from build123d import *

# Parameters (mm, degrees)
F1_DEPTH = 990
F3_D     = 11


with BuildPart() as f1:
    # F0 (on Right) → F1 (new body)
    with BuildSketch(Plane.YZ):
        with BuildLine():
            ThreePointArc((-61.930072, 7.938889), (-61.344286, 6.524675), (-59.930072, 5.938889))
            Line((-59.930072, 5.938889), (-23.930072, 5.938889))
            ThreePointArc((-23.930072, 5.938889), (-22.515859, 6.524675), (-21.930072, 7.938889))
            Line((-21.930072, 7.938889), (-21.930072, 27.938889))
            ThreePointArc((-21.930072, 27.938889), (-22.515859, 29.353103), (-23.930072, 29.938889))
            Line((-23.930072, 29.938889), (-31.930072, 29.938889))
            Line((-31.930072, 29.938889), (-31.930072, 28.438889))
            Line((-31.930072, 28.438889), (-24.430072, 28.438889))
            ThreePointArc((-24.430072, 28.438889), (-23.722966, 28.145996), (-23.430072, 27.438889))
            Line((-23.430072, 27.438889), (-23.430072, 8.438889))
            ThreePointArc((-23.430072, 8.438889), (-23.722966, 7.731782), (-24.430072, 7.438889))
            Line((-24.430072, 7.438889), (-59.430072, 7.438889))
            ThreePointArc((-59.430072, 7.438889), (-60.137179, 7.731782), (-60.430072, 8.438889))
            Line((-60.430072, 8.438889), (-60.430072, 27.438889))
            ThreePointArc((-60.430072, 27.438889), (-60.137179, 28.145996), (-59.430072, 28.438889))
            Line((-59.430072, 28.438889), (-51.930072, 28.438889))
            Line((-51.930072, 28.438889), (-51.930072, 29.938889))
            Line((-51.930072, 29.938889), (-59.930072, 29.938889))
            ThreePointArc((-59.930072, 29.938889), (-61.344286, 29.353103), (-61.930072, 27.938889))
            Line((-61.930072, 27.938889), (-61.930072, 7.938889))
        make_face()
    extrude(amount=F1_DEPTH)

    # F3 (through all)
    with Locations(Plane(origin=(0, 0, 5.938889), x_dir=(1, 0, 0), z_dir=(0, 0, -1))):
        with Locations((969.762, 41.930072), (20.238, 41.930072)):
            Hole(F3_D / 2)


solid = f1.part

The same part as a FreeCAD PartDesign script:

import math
import FreeCAD as App
import Part
import Sketcher
from FreeCAD import Vector

doc = App.newDocument("Part")
body = doc.addObject("PartDesign::Body", "Body")

# Sketch on YZ plane
sketch1 = doc.addObject("Sketcher::SketchObject", "Sketch")
body.addObject(sketch1)
sketch1.AttachmentSupport = (doc.YZ_Plane, [""])
sketch1.MapMode = "FlatFace"
sketch1.addGeometry([
    Part.ArcOfCircle(Part.Circle(Vector(-59.9, 7.9, 0), Vector(0, 0, 1), 2), math.radians(180), math.radians(270)),  # 0
    Part.LineSegment(Vector(-59.9, 5.9, 0), Vector(-23.9, 5.9, 0)),  # 1
    Part.ArcOfCircle(Part.Circle(Vector(-23.9, 7.9, 0), Vector(0, 0, 1), 2), math.radians(-90), math.radians(0)),  # 2
    Part.LineSegment(Vector(-21.9, 7.9, 0), Vector(-21.9, 27.9, 0)),  # 3
    Part.ArcOfCircle(Part.Circle(Vector(-23.9, 27.9, 0), Vector(0, 0, 1), 2), math.radians(0), math.radians(90)),  # 4
    Part.LineSegment(Vector(-23.9, 29.9, 0), Vector(-31.9, 29.9, 0)),  # 5
    Part.LineSegment(Vector(-31.9, 29.9, 0), Vector(-31.9, 28.4, 0)),  # 6
    Part.LineSegment(Vector(-31.9, 28.4, 0), Vector(-24.4, 28.4, 0)),  # 7
    Part.ArcOfCircle(Part.Circle(Vector(-24.4, 27.4, 0), Vector(0, 0, 1), 1), math.radians(0), math.radians(90)),  # 8
    Part.LineSegment(Vector(-23.4, 27.4, 0), Vector(-23.4, 8.4, 0)),  # 9
    Part.ArcOfCircle(Part.Circle(Vector(-24.4, 8.4, 0), Vector(0, 0, 1), 1), math.radians(-90), math.radians(0)),  # 10
    Part.LineSegment(Vector(-24.4, 7.4, 0), Vector(-59.4, 7.4, 0)),  # 11
    Part.ArcOfCircle(Part.Circle(Vector(-59.4, 8.4, 0), Vector(0, 0, 1), 1), math.radians(180), math.radians(270)),  # 12
    Part.LineSegment(Vector(-60.4, 8.4, 0), Vector(-60.4, 27.4, 0)),  # 13
    Part.ArcOfCircle(Part.Circle(Vector(-59.4, 27.4, 0), Vector(0, 0, 1), 1), math.radians(90), math.radians(180)),  # 14
    Part.LineSegment(Vector(-59.4, 28.4, 0), Vector(-51.9, 28.4, 0)),  # 15
    Part.LineSegment(Vector(-51.9, 28.4, 0), Vector(-51.9, 29.9, 0)),  # 16
    Part.LineSegment(Vector(-51.9, 29.9, 0), Vector(-59.9, 29.9, 0)),  # 17
    Part.ArcOfCircle(Part.Circle(Vector(-59.9, 27.9, 0), Vector(0, 0, 1), 2), math.radians(90), math.radians(180)),  # 18
    Part.LineSegment(Vector(-61.9, 27.9, 0), Vector(-61.9, 7.9, 0)),  # 19
], False)
sketch1.addConstraint([
    Sketcher.Constraint("Tangent", 0, 2, 1, 1),
    Sketcher.Constraint("Tangent", 1, 2, 2, 1),
    Sketcher.Constraint("Tangent", 2, 2, 3, 1),
    Sketcher.Constraint("Tangent", 3, 2, 4, 1),
    Sketcher.Constraint("Tangent", 4, 2, 5, 1),
    Sketcher.Constraint("Coincident", 5, 2, 6, 1),
    Sketcher.Constraint("Coincident", 6, 2, 7, 1),
    Sketcher.Constraint("Tangent", 7, 2, 8, 2),
    Sketcher.Constraint("Tangent", 8, 1, 9, 1),
    Sketcher.Constraint("Tangent", 9, 2, 10, 2),
    Sketcher.Constraint("Tangent", 10, 1, 11, 1),
    Sketcher.Constraint("Tangent", 11, 2, 12, 2),
    Sketcher.Constraint("Tangent", 12, 1, 13, 1),
    Sketcher.Constraint("Tangent", 13, 2, 14, 2),
    Sketcher.Constraint("Tangent", 14, 1, 15, 1),
    Sketcher.Constraint("Coincident", 15, 2, 16, 1),
    Sketcher.Constraint("Coincident", 16, 2, 17, 1),
    Sketcher.Constraint("Tangent", 17, 2, 18, 1),
    Sketcher.Constraint("Tangent", 18, 2, 19, 1),
    Sketcher.Constraint("Tangent", 19, 2, 0, 1),
    Sketcher.Constraint("Horizontal", 1),
    Sketcher.Constraint("Vertical", 3),
    Sketcher.Constraint("Horizontal", 5),
    Sketcher.Constraint("Vertical", 6),
    Sketcher.Constraint("Horizontal", 7),
    Sketcher.Constraint("Vertical", 9),
    Sketcher.Constraint("Horizontal", 11),
    Sketcher.Constraint("Vertical", 13),
    Sketcher.Constraint("Horizontal", 15),
    Sketcher.Constraint("Vertical", 16),
    Sketcher.Constraint("Horizontal", 17),
    Sketcher.Constraint("Vertical", 19),
    Sketcher.Constraint("Equal", 0, 2),
    Sketcher.Constraint("Equal", 2, 4),
    Sketcher.Constraint("Equal", 8, 10),
    Sketcher.Constraint("Equal", 10, 12),
    Sketcher.Constraint("Equal", 12, 14),
    Sketcher.Constraint("Equal", 4, 18),
    Sketcher.Constraint("Horizontal", 8, 3, 14, 3),
    Sketcher.Constraint("Horizontal", 4, 3, 18, 3),
    Sketcher.Constraint("Equal", 7, 15),
    Sketcher.Constraint("Equal", 5, 17),
    Sketcher.Constraint("Radius", 0, 1.999999),
    Sketcher.Constraint("Radius", 8, 1.000001),
    Sketcher.Constraint("DistanceX", 1, 1, 1, 2, 36.0),
    Sketcher.Constraint("DistanceX", 5, 2, 5, 1, 8.0),
    Sketcher.Constraint("DistanceX", 11, 2, 11, 1, 35.0),
    Sketcher.Constraint("DistanceY", 3, 1, 3, 2, 20.0),
    Sketcher.Constraint("DistanceY", 9, 2, 9, 1, 19.0),
    Sketcher.Constraint("DistanceY", 6, 2, 6, 1, 1.5),
    Sketcher.Constraint("DistanceY", -1, 1, 2, 3, 7.938889),
    Sketcher.Constraint("DistanceX", 1, 2, -1, 1, 23.930072),
])
pad1 = doc.addObject("PartDesign::Pad", "Pad")
body.addObject(pad1)
pad1.Profile = sketch1
pad1.Length = 990

# Sketch on XY plane
sketch2 = doc.addObject("Sketcher::SketchObject", "Sketch001")
body.addObject(sketch2)
sketch2.AttachmentSupport = (doc.XY_Plane, [""])
sketch2.MapMode = "FlatFace"
sketch2.AttachmentOffset = App.Placement(Vector(0, 0, 5.938889), App.Rotation())
sketch2.addGeometry([
    Part.Circle(Vector(970, -42, 0), Vector(0, 0, 1), 6),
    Part.Circle(Vector(20, -42, 0), Vector(0, 0, 1), 6),
], False)
sketch2.addConstraint([
    Sketcher.Constraint("Equal", 0, 1),
    Sketcher.Constraint("Horizontal", 0, 3, 1, 3),
    Sketcher.Constraint("Diameter", 0, 11.0),
    Sketcher.Constraint("DistanceX", -1, 1, 0, 3, 969.762),
    Sketcher.Constraint("DistanceX", -1, 1, 1, 3, 20.238),
    Sketcher.Constraint("DistanceY", 0, 3, -1, 1, 41.930072),
])
doc.recompute()
hole = doc.addObject("PartDesign::Hole", "Hole")
body.addObject(hole)
hole.Profile = sketch2
hole.ThreadType = "None"
hole.Diameter = 11
hole.DepthType = "ThroughAll"
hole.Reversed = True

doc.recompute()
